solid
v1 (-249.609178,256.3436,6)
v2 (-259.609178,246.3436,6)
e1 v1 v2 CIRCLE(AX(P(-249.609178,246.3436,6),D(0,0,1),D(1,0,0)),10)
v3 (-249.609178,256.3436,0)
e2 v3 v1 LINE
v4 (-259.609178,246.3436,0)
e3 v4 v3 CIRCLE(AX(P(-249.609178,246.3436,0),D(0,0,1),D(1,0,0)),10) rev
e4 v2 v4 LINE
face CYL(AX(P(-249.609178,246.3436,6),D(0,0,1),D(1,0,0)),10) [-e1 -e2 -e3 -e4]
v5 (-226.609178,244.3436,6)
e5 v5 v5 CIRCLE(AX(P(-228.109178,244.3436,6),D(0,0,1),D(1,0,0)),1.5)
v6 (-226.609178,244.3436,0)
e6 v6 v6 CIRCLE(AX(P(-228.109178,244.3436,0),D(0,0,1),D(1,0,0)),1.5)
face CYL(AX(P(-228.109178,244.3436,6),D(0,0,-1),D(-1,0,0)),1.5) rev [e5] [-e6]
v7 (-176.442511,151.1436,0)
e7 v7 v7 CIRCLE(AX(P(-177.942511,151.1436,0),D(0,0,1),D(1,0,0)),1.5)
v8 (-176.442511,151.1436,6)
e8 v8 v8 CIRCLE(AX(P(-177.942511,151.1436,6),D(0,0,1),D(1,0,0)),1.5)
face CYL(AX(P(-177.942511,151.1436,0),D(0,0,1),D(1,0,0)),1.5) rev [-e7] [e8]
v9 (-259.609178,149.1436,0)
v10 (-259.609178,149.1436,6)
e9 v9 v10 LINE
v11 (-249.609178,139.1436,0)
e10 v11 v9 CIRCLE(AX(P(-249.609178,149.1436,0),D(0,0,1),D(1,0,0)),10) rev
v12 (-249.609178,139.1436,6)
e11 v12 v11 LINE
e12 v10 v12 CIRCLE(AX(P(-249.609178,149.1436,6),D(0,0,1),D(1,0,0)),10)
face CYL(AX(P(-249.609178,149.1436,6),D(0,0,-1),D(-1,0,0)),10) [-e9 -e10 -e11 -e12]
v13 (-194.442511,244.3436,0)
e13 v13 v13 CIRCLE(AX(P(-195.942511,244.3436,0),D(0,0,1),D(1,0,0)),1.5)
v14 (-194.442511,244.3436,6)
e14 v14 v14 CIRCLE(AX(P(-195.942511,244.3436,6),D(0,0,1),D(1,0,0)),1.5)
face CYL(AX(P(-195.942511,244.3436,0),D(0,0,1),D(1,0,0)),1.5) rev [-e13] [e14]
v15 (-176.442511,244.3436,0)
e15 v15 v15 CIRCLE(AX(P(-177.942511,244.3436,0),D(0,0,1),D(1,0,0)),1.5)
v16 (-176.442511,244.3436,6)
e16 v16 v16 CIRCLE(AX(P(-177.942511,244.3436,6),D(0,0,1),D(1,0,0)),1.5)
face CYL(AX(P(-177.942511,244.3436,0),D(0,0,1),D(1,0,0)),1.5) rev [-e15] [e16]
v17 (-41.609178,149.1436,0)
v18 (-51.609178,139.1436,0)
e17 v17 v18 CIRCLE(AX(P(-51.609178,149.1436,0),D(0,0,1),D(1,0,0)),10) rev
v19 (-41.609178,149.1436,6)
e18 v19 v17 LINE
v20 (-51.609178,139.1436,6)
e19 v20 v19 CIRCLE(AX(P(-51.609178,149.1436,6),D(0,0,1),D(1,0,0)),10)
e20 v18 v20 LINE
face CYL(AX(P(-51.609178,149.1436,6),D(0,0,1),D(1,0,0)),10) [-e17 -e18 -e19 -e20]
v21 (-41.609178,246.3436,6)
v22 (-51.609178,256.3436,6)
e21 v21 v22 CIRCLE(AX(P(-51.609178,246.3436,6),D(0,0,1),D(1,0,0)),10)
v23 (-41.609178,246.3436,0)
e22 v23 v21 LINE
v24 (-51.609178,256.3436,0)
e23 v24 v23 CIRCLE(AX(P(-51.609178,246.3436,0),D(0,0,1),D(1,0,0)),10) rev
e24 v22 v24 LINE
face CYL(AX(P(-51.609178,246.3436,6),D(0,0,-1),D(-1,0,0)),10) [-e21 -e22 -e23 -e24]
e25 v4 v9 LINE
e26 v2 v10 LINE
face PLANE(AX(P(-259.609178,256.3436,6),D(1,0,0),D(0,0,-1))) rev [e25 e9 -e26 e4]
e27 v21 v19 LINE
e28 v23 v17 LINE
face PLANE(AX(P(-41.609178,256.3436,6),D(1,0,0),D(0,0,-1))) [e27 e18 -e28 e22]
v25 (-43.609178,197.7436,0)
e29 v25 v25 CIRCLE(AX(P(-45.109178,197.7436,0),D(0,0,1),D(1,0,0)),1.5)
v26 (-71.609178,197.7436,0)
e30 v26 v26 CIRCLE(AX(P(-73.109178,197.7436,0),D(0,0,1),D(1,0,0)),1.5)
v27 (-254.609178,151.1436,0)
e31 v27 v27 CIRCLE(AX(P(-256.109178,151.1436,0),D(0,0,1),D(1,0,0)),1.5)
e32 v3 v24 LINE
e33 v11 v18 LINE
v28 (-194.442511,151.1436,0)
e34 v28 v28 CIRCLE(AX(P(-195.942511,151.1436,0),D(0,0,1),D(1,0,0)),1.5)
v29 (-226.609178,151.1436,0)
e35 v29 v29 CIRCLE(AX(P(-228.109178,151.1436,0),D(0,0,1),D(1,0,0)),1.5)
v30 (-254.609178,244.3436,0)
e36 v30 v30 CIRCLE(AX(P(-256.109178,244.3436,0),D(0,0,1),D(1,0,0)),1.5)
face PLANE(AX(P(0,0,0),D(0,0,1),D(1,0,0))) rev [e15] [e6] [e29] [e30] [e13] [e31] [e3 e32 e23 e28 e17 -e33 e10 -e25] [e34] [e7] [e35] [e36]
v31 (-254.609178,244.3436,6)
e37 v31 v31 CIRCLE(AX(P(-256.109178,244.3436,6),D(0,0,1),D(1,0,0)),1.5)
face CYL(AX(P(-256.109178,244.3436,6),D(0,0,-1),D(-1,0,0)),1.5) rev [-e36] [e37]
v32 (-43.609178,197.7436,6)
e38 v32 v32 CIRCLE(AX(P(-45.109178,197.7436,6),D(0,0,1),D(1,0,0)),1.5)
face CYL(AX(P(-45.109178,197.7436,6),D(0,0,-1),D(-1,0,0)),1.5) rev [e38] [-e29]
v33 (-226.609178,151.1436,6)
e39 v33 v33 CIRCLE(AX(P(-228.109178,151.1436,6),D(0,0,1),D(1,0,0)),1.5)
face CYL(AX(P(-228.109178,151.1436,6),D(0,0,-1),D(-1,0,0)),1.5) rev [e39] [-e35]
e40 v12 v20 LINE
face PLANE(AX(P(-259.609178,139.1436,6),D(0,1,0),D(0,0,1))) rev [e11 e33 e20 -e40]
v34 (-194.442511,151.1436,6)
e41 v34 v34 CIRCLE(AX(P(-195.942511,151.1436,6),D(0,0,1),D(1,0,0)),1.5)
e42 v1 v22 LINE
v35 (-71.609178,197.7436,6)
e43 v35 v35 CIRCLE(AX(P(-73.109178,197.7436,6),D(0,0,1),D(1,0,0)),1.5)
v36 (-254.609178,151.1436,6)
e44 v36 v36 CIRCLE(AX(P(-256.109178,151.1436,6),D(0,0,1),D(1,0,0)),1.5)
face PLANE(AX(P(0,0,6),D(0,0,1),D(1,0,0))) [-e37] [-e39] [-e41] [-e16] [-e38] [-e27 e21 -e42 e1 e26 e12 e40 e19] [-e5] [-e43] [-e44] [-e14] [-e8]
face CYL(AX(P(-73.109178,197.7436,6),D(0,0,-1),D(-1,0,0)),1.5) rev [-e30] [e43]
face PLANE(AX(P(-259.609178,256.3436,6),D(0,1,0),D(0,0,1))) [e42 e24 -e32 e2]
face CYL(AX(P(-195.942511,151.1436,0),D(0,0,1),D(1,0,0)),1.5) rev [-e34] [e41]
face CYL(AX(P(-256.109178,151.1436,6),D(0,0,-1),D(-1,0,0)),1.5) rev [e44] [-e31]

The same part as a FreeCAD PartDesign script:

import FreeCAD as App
import Part
import Sketcher
from FreeCAD import Vector
Q = App.Units.Quantity


def edges_at(feature, points):
    """Names of the edges that pass closest to the given points."""
    edges = feature.Shape.Edges
    near = lambda p: min(range(len(edges)), key=lambda i: edges[i].distToShape(Part.Vertex(*p))[0])
    return sorted({f"Edge{near(p) + 1}" for p in points})


def add_polygon(sketch, points):
    """Adds a closed chain of lines whose ends are joined by coincident constraints."""
    first, n = sketch.GeometryCount, len(points)
    for a, b in zip(points, points[1:] + points[:1]):
        sketch.addGeometry(Part.LineSegment(App.Vector(*a, 0), App.Vector(*b, 0)), False)
    for i in range(n):
        sketch.addConstraint(Sketcher.Constraint("Coincident", first + i, 2, first + (i + 1) % n, 1))

doc = App.newDocument("Part")
params = doc.addObject("Spreadsheet::Sheet", "Params")
for row, (alias, value) in enumerate([
    ("sketch1_diameter", "3 mm"),
    ("sketch1_width", "218 mm"),
    ("sketch1_height", "117.2 mm"),
    ("pad1_length", "6 mm"),
    ("sketch2_diameter", "3 mm"),
    ("pocket1_length", "6 mm"),
    ("fillet_radius", "10 mm"),
], start=1):
    params.set(f"A{row}", alias)
    params.set(f"B{row}", "=" + value)
    params.setAlias(f"B{row}", alias)

body = doc.addObject("PartDesign::Body", "Body")

# Sketch on XY plane
sketch1 = body.newObject("Sketcher::SketchObject", "Sketch")
sketch1.AttachmentSupport = (doc.getObject("XY_Plane"), [""])
sketch1.MapMode = "FlatFace"
add_polygon(sketch1, [(-259.6, 256.3), (-259.6, 139.1), (-41.6, 139.1), (-41.6, 256.3)])  # lines 0-3
sketch1.addGeometry(Part.Circle(Vector(-256.1, 151.1, 0), Vector(0, 0, 1), 1.5), False)  # 4
sketch1.addGeometry(Part.Circle(Vector(-228.1, 151.1, 0), Vector(0, 0, 1), 1.5), False)  # 5
sketch1.addGeometry(Part.Circle(Vector(-73.1, 197.7, 0), Vector(0, 0, 1), 1.5), False)  # 6
sketch1.addGeometry(Part.Circle(Vector(-45.1, 197.7, 0), Vector(0, 0, 1), 1.5), False)  # 7
sketch1.addGeometry(Part.Circle(Vector(-256.1, 244.3, 0), Vector(0, 0, 1), 1.5), False)  # 8
sketch1.addGeometry(Part.Circle(Vector(-228.1, 244.3, 0), Vector(0, 0, 1), 1.5), False)  # 9
sketch1.addConstraint([
    Sketcher.Constraint("Vertical", 0),
    Sketcher.Constraint("Horizontal", 1),
    Sketcher.Constraint("Vertical", 2),
    Sketcher.Constraint("Horizontal", 3),
    Sketcher.Constraint("Equal", 4, 5),
    Sketcher.Constraint("Equal", 5, 6),
    Sketcher.Constraint("Equal", 6, 7),
    Sketcher.Constraint("Equal", 7, 8),
    Sketcher.Constraint("Equal", 8, 9),
    Sketcher.Constraint("Horizontal", 4, 3, 5, 3),
    Sketcher.Constraint("Horizontal", 6, 3, 7, 3),
    Sketcher.Constraint("Horizontal", 8, 3, 9, 3),
    Sketcher.Constraint("Vertical", 4, 3, 8, 3),
    Sketcher.Constraint("Vertical", 5, 3, 9, 3),
    Sketcher.Constraint("Diameter", 4, Q("3 mm")),
    Sketcher.Constraint("DistanceX", 1, 1, 1, 2, Q("218 mm")),
    Sketcher.Constraint("DistanceY", 0, 2, 0, 1, Q("117.2 mm")),
    Sketcher.Constraint("DistanceX", 4, 3, 5, 3, Q("28 mm")),
    Sketcher.Constraint("DistanceX", 5, 3, 6, 3, Q("155 mm")),
    Sketcher.Constraint("DistanceX", 6, 3, 7, 3, Q("28 mm")),
    Sketcher.Constraint("DistanceY", 0, 2, 4, 3, Q("12 mm")),
    Sketcher.Constraint("DistanceY", 9, 3, 2, 2, Q("12 mm")),
    Sketcher.Constraint("DistanceY", 5, 3, 6, 3, Q("46.6 mm")),
    Sketcher.Constraint("DistanceX", 0, 2, 4, 3, Q("3.5 mm")),
    Sketcher.Constraint("DistanceY", -1, 1, 4, 3, Q("151.1436 mm")),
    Sketcher.Constraint("DistanceX", 4, 3, -1, 1, Q("256.109178 mm")),
])
sketch1.setExpression("Constraints[18]", "Params.sketch1_diameter")
sketch1.setExpression("Constraints[19]", "Params.sketch1_width")
sketch1.setExpression("Constraints[20]", "Params.sketch1_height")
pad1 = body.newObject("PartDesign::Pad", "Pad")
pad1.Profile = sketch1
pad1.setExpression("Length", "Params.pad1_length")

# Sketch on XY plane
sketch2 = body.newObject("Sketcher::SketchObject", "Sketch001")
sketch2.AttachmentSupport = (doc.getObject("XY_Plane"), [""])
sketch2.MapMode = "FlatFace"
sketch2.AttachmentOffset = App.Placement(Vector(0, 0, 6), App.Rotation())
sketch2.addGeometry([
    Part.Circle(Vector(-195.9, 151.1, 0), Vector(0, 0, 1), 1.5),
    Part.Circle(Vector(-177.9, 151.1, 0), Vector(0, 0, 1), 1.5),
    Part.Circle(Vector(-195.9, 244.3, 0), Vector(0, 0, 1), 1.5),
    Part.Circle(Vector(-177.9, 244.3, 0), Vector(0, 0, 1), 1.5),
], False)
sketch2.addConstraint([
    Sketcher.Constraint("Equal", 0, 1),
    Sketcher.Constraint("Equal", 1, 2),
    Sketcher.Constraint("Equal", 2, 3),
    Sketcher.Constraint("Horizontal", 0, 3, 1, 3),
    Sketcher.Constraint("Horizontal", 2, 3, 3, 3),
    Sketcher.Constraint("Vertical", 0, 3, 2, 3),
    Sketcher.Constraint("Vertical", 1, 3, 3, 3),
    Sketcher.Constraint("Diameter", 0, Q("3 mm")),
    Sketcher.Constraint("DistanceX", 0, 3, 1, 3, Q("18 mm")),
    Sketcher.Constraint("DistanceY", 0, 3, 2, 3, Q("93.2 mm")),
    Sketcher.Constraint("DistanceY", -1, 1, 0, 3, Q("151.1436 mm")),
    Sketcher.Constraint("DistanceX", 0, 3, -1, 1, Q("195.942511 mm")),
])
sketch2.setExpression("Constraints[7]", "Params.sketch2_diameter")
pocket1 = body.newObject("PartDesign::Pocket", "Pocket")
pocket1.Profile = sketch2
pocket1.setExpression("Length", "Params.pocket1_length")
doc.recompute()

fillet = body.newObject("PartDesign::Fillet", "Fillet")
fillet.Base = (pocket1, edges_at(pocket1, [
    (-259.609, 256.344, 3),
    (-41.609, 256.344, 3),
    (-41.609, 139.144, 3),
    (-259.609, 139.144, 3),
]))
fillet.setExpression("Radius", "Params.fillet_radius")

doc.recompute()
